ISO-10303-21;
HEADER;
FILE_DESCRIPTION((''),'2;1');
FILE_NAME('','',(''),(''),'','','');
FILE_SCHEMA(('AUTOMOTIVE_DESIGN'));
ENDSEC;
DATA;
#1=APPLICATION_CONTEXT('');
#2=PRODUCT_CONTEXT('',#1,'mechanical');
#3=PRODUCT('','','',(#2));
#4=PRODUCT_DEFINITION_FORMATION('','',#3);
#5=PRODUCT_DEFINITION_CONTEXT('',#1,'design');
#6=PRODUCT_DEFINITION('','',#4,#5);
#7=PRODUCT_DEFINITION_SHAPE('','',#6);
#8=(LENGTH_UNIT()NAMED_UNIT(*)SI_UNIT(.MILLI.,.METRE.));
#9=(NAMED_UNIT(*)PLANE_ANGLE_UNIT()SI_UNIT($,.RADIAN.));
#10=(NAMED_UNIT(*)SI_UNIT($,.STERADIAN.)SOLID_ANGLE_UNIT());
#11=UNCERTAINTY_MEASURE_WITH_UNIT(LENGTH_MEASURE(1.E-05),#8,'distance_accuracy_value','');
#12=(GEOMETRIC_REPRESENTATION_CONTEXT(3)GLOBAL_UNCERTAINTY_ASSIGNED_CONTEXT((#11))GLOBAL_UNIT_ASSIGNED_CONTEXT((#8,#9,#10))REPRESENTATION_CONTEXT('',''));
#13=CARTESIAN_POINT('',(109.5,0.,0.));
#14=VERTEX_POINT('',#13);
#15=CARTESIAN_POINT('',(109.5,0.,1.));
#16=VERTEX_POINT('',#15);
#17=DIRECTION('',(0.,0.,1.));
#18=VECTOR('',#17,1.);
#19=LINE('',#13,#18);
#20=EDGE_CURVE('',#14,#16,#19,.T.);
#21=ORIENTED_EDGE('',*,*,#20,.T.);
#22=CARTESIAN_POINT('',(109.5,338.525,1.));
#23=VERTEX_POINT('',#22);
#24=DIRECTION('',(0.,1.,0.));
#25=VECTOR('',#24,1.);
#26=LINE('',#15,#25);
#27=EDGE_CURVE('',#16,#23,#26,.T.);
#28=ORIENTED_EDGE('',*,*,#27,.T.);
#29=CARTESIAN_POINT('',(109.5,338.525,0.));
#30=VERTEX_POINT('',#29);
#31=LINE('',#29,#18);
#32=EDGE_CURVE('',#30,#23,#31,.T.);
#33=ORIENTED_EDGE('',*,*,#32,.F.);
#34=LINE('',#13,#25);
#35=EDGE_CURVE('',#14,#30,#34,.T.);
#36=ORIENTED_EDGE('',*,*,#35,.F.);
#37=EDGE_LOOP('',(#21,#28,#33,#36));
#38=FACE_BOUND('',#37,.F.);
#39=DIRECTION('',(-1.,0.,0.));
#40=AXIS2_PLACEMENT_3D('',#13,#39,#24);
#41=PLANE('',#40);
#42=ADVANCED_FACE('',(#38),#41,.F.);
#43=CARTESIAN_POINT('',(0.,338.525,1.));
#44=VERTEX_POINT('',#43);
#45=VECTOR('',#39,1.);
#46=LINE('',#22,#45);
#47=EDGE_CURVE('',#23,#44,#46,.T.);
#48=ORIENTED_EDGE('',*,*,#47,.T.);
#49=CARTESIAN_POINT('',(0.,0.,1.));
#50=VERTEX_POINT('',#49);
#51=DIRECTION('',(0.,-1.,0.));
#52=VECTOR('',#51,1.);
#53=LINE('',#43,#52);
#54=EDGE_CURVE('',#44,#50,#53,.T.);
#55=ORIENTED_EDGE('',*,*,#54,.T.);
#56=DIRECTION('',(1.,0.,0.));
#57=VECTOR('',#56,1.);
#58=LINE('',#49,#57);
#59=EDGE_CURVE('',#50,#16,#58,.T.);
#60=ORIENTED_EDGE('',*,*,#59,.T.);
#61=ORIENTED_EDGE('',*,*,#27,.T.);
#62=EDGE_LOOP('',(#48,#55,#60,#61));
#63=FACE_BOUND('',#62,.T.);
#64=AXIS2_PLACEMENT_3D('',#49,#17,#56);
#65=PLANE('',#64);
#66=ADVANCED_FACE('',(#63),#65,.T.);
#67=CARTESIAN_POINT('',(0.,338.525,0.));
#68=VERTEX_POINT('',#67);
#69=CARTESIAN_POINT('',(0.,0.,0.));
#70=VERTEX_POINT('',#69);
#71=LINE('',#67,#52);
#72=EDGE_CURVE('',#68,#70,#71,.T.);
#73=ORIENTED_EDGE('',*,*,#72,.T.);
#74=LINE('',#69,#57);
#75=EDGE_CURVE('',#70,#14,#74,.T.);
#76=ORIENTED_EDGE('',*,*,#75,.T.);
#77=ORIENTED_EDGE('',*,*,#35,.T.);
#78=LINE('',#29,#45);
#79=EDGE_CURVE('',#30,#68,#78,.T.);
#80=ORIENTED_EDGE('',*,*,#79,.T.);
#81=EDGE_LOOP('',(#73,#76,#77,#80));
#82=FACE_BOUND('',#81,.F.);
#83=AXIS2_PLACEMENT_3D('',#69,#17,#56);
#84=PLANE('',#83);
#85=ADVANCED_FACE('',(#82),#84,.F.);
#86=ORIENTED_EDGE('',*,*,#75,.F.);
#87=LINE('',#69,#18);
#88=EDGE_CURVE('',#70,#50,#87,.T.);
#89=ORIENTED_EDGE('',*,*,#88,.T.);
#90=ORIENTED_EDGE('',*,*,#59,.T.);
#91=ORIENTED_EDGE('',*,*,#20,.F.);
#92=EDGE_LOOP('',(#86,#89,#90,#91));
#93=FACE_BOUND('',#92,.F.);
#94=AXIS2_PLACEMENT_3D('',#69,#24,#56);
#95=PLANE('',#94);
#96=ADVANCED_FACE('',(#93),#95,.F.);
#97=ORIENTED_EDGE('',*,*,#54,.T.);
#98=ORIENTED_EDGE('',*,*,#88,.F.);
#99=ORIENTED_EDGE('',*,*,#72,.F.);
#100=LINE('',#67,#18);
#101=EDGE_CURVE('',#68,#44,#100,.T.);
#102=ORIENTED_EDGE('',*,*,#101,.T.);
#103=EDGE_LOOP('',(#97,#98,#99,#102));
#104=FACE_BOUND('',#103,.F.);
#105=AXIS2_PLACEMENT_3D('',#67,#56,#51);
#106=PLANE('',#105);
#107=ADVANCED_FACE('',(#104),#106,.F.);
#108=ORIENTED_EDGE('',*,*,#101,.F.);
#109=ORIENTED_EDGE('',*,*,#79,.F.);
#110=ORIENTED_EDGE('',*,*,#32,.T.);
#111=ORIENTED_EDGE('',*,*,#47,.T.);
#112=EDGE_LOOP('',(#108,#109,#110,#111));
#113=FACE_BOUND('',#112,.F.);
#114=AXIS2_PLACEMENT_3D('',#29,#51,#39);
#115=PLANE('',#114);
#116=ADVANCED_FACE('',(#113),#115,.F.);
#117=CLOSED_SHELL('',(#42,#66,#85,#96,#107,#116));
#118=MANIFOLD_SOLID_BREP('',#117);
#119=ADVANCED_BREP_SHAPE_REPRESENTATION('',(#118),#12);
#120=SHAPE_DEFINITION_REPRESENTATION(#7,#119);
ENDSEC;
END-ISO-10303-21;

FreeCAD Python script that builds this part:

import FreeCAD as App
import Part
import Sketcher
from FreeCAD import Vector
Q = App.Units.Quantity

doc = App.newDocument("Part")
params = doc.addObject("Spreadsheet::Sheet", "Params")
for row, (alias, value) in enumerate([
    ("sketch1_width", "109.5 mm"),
    ("pad1_length", "1 mm"),
], start=1):
    params.set(f"A{row}", alias)
    params.set(f"B{row}", "=" + value)
    params.setAlias(f"B{row}", alias)

body = doc.addObject("PartDesign::Body", "Body")

# Sketch on XY plane
sketch1 = doc.addObject("Sketcher::SketchObject", "Sketch")
body.addObject(sketch1)
sketch1.AttachmentSupport = (doc.XY_Plane, [""])
sketch1.MapMode = "FlatFace"
sketch1.addGeometry(Part.LineSegment(Vector(0, 338.525, 0), Vector(0, 0, 0)), False)
sketch1.addGeometry(Part.LineSegment(Vector(0, 0, 0), Vector(109.5, 0, 0)), False)
sketch1.addGeometry(Part.LineSegment(Vector(109.5, 0, 0), Vector(109.5, 338.525, 0)), False)
sketch1.addGeometry(Part.LineSegment(Vector(109.5, 338.525, 0), Vector(0, 338.525, 0)), False)
sketch1.addConstraint(Sketcher.Constraint("Coincident", 0, 2, 1, 1))
sketch1.addConstraint(Sketcher.Constraint("Coincident", 1, 2, 2, 1))
sketch1.addConstraint(Sketcher.Constraint("Coincident", 2, 2, 3, 1))
sketch1.addConstraint(Sketcher.Constraint("Coincident", 3, 2, 0, 1))
sketch1.addConstraint(Sketcher.Constraint("Vertical", 0))
sketch1.addConstraint(Sketcher.Constraint("Horizontal", 1))
sketch1.addConstraint(Sketcher.Constraint("Vertical", 2))
sketch1.addConstraint(Sketcher.Constraint("Horizontal", 3))
sketch1.addConstraint(Sketcher.Constraint("Coincident", 0, 2, -1, 1))
sketch1.addConstraint(Sketcher.Constraint("DistanceX", 1, 1, 1, 2, Q("109.5 mm")))
sketch1.addConstraint(Sketcher.Constraint("DistanceY", 0, 2, 0, 1, Q("338.525 mm")))
sketch1.setExpression("Constraints[9]", "Params.sketch1_width")
pad1 = doc.addObject("PartDesign::Pad", "Pad")
body.addObject(pad1)
pad1.Profile = sketch1
pad1.setExpression("Length", "Params.pad1_length")

doc.recompute()
